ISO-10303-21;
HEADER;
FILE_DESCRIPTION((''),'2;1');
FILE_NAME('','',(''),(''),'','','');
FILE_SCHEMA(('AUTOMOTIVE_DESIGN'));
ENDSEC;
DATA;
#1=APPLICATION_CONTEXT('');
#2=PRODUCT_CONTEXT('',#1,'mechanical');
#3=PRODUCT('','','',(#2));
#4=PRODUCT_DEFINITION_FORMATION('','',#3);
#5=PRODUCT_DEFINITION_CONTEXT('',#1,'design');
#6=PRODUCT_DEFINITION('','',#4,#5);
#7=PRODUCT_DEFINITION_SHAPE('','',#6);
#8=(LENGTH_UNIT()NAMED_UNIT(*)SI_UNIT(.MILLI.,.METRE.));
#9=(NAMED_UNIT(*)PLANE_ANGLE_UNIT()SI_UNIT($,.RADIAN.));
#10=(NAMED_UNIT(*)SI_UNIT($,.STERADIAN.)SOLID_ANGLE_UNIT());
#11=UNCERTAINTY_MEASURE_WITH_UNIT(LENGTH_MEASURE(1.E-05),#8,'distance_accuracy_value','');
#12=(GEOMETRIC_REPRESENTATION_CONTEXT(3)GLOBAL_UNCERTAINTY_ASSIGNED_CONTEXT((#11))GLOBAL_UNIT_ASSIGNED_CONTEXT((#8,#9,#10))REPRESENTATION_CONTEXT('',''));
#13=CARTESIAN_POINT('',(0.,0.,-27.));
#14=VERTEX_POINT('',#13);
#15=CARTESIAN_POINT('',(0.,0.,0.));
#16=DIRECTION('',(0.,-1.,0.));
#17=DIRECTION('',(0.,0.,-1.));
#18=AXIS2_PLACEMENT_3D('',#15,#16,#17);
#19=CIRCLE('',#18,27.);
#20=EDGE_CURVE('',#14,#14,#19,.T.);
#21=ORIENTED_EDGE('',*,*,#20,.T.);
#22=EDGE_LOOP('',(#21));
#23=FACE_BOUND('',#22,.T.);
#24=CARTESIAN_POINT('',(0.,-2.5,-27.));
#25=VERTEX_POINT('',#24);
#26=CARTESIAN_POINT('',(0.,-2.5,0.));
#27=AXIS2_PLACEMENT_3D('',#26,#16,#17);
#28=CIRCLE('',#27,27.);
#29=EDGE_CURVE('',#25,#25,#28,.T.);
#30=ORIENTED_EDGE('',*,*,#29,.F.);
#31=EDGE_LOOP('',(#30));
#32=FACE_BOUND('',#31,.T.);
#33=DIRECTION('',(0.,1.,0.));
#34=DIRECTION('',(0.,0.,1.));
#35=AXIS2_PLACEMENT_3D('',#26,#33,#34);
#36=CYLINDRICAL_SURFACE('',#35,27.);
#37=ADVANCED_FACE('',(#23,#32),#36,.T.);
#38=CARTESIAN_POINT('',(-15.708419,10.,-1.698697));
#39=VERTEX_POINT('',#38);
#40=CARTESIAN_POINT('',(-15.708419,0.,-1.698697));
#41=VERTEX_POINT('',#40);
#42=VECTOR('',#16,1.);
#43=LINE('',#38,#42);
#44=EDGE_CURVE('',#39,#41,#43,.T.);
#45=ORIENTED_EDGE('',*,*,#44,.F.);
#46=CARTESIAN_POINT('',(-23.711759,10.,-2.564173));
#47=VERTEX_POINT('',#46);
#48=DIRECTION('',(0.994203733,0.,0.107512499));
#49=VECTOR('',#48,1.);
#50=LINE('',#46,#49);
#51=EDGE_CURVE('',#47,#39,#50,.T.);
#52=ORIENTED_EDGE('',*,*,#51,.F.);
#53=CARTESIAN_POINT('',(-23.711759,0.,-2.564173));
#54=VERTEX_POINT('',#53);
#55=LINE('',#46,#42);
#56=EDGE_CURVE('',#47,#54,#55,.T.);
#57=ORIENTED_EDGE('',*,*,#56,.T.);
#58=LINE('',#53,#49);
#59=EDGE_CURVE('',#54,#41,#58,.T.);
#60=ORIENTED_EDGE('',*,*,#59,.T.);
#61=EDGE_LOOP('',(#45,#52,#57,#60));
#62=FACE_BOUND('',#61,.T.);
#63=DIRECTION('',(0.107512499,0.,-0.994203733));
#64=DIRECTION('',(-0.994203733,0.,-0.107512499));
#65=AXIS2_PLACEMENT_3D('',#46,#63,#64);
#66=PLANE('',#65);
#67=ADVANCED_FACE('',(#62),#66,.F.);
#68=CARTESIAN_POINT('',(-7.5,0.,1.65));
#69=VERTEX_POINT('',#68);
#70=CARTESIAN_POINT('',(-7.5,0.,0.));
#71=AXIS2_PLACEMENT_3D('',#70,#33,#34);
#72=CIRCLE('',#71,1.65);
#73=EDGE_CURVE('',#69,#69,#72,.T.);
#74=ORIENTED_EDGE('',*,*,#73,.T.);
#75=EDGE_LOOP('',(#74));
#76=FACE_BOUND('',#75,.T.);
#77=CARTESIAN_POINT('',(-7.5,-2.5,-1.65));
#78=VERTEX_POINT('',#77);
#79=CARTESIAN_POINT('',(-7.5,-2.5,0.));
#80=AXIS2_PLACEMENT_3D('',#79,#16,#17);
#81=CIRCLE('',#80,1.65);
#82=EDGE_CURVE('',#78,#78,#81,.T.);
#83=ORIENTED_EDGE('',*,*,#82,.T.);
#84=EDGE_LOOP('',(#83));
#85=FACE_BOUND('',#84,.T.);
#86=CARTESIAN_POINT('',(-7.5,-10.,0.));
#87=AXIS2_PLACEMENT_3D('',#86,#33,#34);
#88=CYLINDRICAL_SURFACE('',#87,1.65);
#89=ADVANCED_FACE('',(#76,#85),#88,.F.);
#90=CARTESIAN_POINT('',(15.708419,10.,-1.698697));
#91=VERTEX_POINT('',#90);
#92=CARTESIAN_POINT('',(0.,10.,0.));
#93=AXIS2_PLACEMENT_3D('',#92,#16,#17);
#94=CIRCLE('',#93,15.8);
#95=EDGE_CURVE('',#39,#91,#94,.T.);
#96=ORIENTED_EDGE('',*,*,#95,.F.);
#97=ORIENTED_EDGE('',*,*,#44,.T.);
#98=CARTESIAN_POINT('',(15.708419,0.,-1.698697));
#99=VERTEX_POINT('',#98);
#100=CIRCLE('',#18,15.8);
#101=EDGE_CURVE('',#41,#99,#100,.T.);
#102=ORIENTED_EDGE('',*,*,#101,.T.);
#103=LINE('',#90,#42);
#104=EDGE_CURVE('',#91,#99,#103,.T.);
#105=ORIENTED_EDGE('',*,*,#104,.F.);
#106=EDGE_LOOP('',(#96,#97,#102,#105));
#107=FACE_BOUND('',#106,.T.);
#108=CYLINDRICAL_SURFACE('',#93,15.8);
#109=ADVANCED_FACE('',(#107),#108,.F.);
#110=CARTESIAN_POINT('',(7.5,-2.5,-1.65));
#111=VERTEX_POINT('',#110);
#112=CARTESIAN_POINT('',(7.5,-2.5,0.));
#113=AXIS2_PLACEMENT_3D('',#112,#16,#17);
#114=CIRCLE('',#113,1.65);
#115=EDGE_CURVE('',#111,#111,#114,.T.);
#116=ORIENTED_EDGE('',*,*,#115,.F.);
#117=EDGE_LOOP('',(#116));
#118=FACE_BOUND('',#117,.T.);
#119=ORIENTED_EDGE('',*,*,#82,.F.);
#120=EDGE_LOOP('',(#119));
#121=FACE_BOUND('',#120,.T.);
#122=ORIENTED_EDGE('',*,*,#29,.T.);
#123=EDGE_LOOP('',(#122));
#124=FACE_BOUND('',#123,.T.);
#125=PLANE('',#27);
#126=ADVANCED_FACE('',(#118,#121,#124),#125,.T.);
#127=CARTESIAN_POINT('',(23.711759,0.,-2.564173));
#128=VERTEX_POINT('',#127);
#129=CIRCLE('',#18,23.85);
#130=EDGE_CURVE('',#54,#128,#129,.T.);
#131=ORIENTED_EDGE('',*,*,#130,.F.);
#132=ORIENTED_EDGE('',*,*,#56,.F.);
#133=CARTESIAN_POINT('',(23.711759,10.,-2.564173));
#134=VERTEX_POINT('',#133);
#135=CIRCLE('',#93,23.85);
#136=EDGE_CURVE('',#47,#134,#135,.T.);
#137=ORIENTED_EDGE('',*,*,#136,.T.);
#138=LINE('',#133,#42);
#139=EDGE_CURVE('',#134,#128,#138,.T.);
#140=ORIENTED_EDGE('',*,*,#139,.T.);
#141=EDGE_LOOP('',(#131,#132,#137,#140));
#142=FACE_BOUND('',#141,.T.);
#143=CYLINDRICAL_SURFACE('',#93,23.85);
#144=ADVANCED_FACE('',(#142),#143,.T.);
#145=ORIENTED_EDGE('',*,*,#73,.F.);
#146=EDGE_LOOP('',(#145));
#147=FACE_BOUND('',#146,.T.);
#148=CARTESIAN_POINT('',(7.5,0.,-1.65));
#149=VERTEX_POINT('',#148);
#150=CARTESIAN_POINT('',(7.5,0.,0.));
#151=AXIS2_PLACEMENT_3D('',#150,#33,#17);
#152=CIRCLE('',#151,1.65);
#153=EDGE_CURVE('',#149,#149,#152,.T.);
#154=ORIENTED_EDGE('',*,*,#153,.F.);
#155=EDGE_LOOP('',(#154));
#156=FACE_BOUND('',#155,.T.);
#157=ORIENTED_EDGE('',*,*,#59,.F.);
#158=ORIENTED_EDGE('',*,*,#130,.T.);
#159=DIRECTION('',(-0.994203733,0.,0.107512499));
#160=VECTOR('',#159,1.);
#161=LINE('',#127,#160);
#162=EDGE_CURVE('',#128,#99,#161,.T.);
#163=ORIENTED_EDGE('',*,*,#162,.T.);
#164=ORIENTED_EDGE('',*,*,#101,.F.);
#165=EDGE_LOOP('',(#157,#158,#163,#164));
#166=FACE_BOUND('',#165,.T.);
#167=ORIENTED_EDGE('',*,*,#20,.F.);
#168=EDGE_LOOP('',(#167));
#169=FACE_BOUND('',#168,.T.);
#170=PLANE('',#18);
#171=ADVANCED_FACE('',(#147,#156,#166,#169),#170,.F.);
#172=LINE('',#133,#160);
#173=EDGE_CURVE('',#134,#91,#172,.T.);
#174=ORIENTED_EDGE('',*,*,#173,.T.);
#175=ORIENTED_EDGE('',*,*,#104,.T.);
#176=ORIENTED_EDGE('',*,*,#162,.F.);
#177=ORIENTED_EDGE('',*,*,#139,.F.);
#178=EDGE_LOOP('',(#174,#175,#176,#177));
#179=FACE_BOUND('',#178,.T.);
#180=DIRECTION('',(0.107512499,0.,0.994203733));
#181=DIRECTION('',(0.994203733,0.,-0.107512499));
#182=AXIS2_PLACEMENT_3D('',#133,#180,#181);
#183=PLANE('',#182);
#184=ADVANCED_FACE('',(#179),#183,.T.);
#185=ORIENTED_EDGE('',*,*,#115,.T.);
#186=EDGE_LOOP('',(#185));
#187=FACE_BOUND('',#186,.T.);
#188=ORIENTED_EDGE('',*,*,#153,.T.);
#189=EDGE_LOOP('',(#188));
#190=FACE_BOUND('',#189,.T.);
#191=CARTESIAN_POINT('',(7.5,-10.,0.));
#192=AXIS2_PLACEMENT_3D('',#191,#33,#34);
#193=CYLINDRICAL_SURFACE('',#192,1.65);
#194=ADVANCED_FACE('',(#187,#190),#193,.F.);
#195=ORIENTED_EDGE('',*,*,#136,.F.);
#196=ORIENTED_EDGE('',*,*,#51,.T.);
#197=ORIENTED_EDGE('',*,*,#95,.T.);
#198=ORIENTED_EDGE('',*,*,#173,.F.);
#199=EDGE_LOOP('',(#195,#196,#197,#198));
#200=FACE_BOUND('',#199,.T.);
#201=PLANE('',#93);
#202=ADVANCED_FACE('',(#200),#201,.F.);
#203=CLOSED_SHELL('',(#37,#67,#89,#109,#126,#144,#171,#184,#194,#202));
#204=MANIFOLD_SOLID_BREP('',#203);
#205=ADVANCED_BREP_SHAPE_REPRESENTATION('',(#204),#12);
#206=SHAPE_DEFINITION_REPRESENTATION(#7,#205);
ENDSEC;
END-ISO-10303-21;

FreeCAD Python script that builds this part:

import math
import FreeCAD as App
import Part
import Sketcher

doc = App.newDocument("Part")
params = doc.addObject("Spreadsheet::Sheet", "Params")
for row, (alias, value) in enumerate([
    ("sketch1_radius", "15.8 mm"),
    ("sketch1_radius2", "23.85 mm"),
    ("pad1_length", "10 mm"),
    ("sketch2_diameter", "54 mm"),
    ("pad2_length", "2.5 mm"),
    ("sketch3_diameter", "3.3 mm"),
    ("pocket1_length", "10 mm"),
], start=1):
    params.set(f"A{row}", alias)
    params.set(f"B{row}", "=" + value)
    params.setAlias(f"B{row}", alias)

body = doc.addObject("PartDesign::Body", "Body")

# Sketch on XZ plane
sketch1 = body.newObject("Sketcher::SketchObject", "Sketch")
sketch1.AttachmentSupport = (doc.getObject("XZ_Plane"), [""])
sketch1.MapMode = "FlatFace"
sketch1.addGeometry(Part.LineSegment(App.Vector(-24, -3, 0), App.Vector(-16, -2, 0)), False)
sketch1.addGeometry(Part.ArcOfCircle(Part.Circle(App.Vector(0, 0, 0), App.Vector(0, 0, 1), 16), math.radians(-174), math.radians(-6)), False)
sketch1.addGeometry(Part.LineSegment(App.Vector(16, -2, 0), App.Vector(24, -3, 0)), False)
sketch1.addGeometry(Part.ArcOfCircle(Part.Circle(App.Vector(0, 0, 0), App.Vector(0, 0, 1), 24), math.radians(-174), math.radians(-6)), False)
sketch1.addConstraint(Sketcher.Constraint("Coincident", 0, 2, 1, 1))
sketch1.addConstraint(Sketcher.Constraint("Coincident", 1, 2, 2, 1))
sketch1.addConstraint(Sketcher.Constraint("Coincident", 2, 2, 3, 2))
sketch1.addConstraint(Sketcher.Constraint("Coincident", 3, 1, 0, 1))
sketch1.addConstraint(Sketcher.Constraint("Coincident", 1, 3, -1, 1))
sketch1.addConstraint(Sketcher.Constraint("Coincident", 3, 3, -1, 1))
sketch1.addConstraint(Sketcher.Constraint("Horizontal", 0, 2, 1, 2))
sketch1.addConstraint(Sketcher.Constraint("Horizontal", 2, 2, 3, 1))
sketch1.addConstraint(Sketcher.Constraint("Radius", 1, 15.8))
sketch1.addConstraint(Sketcher.Constraint("Radius", 3, 23.85))
sketch1.addConstraint(Sketcher.Constraint("DistanceX", 0, 2, -1, 1, 15.708419))
sketch1.addConstraint(Sketcher.Constraint("DistanceX", -1, 1, 2, 2, 23.711759))
sketch1.setExpression("Constraints[8]", "Params.sketch1_radius")
sketch1.setExpression("Constraints[9]", "Params.sketch1_radius2")
pad1 = body.newObject("PartDesign::Pad", "Pad")
pad1.Profile = sketch1
pad1.setExpression("Length", "Params.pad1_length")
pad1.Reversed = True

# Sketch on XZ plane
sketch2 = body.newObject("Sketcher::SketchObject", "Sketch001")
sketch2.AttachmentSupport = (doc.getObject("XZ_Plane"), [""])
sketch2.MapMode = "FlatFace"
sketch2.addGeometry(Part.Circle(App.Vector(0, 0, 0), App.Vector(0, 0, 1), 27), False)
sketch2.addConstraint(Sketcher.Constraint("Coincident", 0, 3, -1, 1))
sketch2.addConstraint(Sketcher.Constraint("Diameter", 0, 54.0))
sketch2.setExpression("Constraints[1]", "Params.sketch2_diameter")
pad2 = body.newObject("PartDesign::Pad", "Pad001")
pad2.Profile = sketch2
pad2.setExpression("Length", "Params.pad2_length")

# Sketch on XZ plane
sketch3 = body.newObject("Sketcher::SketchObject", "Sketch002")
sketch3.AttachmentSupport = (doc.getObject("XZ_Plane"), [""])
sketch3.MapMode = "FlatFace"
sketch3.addGeometry(Part.Circle(App.Vector(-7.5, 0, 0), App.Vector(0, 0, 1), 1.6), False)
sketch3.addGeometry(Part.Circle(App.Vector(7.5, 0, 0), App.Vector(0, 0, 1), 1.6), False)
sketch3.addConstraint(Sketcher.Constraint("Equal", 0, 1))
sketch3.addConstraint(Sketcher.Constraint("Symmetric", 0, 3, 1, 3, -1, 1))
sketch3.addConstraint(Sketcher.Constraint("PointOnObject", 0, 3, -1))
sketch3.addConstraint(Sketcher.Constraint("Diameter", 0, 3.3))
sketch3.addConstraint(Sketcher.Constraint("DistanceX", 0, 3, 1, 3, 15.0))
sketch3.setExpression("Constraints[3]", "Params.sketch3_diameter")
pocket1 = body.newObject("PartDesign::Pocket", "Pocket")
pocket1.Profile = sketch3
pocket1.setExpression("Length", "Params.pocket1_length")
pocket1.Reversed = True

doc.recompute()
